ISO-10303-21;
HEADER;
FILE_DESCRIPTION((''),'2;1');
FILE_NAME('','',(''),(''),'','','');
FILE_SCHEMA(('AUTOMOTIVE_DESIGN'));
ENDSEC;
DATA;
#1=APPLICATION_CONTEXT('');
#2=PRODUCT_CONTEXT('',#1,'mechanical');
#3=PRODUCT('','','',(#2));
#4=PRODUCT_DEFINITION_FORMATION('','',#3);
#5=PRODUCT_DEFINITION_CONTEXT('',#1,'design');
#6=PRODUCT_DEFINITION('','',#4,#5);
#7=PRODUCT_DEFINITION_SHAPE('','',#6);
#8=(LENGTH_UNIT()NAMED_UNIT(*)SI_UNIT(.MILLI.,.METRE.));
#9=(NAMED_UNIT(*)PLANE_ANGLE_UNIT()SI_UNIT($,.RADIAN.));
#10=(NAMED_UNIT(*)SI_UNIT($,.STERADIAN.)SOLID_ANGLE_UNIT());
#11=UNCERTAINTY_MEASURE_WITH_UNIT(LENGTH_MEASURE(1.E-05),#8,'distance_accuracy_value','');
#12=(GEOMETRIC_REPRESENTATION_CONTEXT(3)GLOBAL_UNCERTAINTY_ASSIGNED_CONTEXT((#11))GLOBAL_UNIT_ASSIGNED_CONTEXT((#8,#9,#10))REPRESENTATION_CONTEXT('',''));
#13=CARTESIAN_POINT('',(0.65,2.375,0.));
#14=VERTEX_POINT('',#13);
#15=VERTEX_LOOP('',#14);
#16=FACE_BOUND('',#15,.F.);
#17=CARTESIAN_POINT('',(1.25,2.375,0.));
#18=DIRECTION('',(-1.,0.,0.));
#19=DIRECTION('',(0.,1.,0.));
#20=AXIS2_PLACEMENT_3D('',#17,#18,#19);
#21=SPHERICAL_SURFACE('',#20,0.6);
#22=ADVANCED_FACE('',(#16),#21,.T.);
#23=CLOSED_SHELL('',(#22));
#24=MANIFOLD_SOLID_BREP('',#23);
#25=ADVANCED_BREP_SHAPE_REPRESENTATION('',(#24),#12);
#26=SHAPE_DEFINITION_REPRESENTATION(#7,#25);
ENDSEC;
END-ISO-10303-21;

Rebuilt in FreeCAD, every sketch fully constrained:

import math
import FreeCAD as App
import Part
import Sketcher

V = App.Vector
Q = App.Units.Quantity

doc = App.newDocument("Part")
body = doc.addObject("PartDesign::Body", "Body")

sketch1 = body.newObject("Sketcher::SketchObject", "Sketch")
sketch1.AttachmentSupport = (doc.getObject("XY_Plane"), [""])
sketch1.MapMode = "FlatFace"
sketch1.addGeometry([
    Part.LineSegment(V(0.7, 2.4, 0), V(1.9, 2.4, 0)),
    Part.ArcOfCircle(Part.Circle(V(1.2, 2.4, 0), V(0, 0, 1), 0.6), math.radians(0), math.radians(180)),
], False)
sketch1.addGeometry(Part.LineSegment(V(0.7, 2.4, 0), V(1.9, 2.4, 0)), True)
sketch1.addConstraint([
    Sketcher.Constraint("Coincident", 0, 1, 1, 2),
    Sketcher.Constraint("Coincident", 1, 1, 0, 2),
    Sketcher.Constraint("Horizontal", 0),
    Sketcher.Constraint("Horizontal", 2),
    Sketcher.Constraint("Coincident", 2, 1, 0, 1),
    Sketcher.Constraint("Horizontal", 1, 3, 0, 1),
    Sketcher.Constraint("Equal", 0, 2),
    Sketcher.Constraint("Radius", 1, Q("0.6 mm")),
    Sketcher.Constraint("DistanceX", -1, 1, 1, 3, Q("1.25 mm")),
    Sketcher.Constraint("DistanceY", -1, 1, 1, 3, Q("2.375 mm")),
])
revolution = body.newObject("PartDesign::Revolution", "Revolution")
revolution.Profile = sketch1
revolution.ReferenceAxis = (sketch1, ["Axis0"])
revolution.Angle = 360

doc.recompute()
